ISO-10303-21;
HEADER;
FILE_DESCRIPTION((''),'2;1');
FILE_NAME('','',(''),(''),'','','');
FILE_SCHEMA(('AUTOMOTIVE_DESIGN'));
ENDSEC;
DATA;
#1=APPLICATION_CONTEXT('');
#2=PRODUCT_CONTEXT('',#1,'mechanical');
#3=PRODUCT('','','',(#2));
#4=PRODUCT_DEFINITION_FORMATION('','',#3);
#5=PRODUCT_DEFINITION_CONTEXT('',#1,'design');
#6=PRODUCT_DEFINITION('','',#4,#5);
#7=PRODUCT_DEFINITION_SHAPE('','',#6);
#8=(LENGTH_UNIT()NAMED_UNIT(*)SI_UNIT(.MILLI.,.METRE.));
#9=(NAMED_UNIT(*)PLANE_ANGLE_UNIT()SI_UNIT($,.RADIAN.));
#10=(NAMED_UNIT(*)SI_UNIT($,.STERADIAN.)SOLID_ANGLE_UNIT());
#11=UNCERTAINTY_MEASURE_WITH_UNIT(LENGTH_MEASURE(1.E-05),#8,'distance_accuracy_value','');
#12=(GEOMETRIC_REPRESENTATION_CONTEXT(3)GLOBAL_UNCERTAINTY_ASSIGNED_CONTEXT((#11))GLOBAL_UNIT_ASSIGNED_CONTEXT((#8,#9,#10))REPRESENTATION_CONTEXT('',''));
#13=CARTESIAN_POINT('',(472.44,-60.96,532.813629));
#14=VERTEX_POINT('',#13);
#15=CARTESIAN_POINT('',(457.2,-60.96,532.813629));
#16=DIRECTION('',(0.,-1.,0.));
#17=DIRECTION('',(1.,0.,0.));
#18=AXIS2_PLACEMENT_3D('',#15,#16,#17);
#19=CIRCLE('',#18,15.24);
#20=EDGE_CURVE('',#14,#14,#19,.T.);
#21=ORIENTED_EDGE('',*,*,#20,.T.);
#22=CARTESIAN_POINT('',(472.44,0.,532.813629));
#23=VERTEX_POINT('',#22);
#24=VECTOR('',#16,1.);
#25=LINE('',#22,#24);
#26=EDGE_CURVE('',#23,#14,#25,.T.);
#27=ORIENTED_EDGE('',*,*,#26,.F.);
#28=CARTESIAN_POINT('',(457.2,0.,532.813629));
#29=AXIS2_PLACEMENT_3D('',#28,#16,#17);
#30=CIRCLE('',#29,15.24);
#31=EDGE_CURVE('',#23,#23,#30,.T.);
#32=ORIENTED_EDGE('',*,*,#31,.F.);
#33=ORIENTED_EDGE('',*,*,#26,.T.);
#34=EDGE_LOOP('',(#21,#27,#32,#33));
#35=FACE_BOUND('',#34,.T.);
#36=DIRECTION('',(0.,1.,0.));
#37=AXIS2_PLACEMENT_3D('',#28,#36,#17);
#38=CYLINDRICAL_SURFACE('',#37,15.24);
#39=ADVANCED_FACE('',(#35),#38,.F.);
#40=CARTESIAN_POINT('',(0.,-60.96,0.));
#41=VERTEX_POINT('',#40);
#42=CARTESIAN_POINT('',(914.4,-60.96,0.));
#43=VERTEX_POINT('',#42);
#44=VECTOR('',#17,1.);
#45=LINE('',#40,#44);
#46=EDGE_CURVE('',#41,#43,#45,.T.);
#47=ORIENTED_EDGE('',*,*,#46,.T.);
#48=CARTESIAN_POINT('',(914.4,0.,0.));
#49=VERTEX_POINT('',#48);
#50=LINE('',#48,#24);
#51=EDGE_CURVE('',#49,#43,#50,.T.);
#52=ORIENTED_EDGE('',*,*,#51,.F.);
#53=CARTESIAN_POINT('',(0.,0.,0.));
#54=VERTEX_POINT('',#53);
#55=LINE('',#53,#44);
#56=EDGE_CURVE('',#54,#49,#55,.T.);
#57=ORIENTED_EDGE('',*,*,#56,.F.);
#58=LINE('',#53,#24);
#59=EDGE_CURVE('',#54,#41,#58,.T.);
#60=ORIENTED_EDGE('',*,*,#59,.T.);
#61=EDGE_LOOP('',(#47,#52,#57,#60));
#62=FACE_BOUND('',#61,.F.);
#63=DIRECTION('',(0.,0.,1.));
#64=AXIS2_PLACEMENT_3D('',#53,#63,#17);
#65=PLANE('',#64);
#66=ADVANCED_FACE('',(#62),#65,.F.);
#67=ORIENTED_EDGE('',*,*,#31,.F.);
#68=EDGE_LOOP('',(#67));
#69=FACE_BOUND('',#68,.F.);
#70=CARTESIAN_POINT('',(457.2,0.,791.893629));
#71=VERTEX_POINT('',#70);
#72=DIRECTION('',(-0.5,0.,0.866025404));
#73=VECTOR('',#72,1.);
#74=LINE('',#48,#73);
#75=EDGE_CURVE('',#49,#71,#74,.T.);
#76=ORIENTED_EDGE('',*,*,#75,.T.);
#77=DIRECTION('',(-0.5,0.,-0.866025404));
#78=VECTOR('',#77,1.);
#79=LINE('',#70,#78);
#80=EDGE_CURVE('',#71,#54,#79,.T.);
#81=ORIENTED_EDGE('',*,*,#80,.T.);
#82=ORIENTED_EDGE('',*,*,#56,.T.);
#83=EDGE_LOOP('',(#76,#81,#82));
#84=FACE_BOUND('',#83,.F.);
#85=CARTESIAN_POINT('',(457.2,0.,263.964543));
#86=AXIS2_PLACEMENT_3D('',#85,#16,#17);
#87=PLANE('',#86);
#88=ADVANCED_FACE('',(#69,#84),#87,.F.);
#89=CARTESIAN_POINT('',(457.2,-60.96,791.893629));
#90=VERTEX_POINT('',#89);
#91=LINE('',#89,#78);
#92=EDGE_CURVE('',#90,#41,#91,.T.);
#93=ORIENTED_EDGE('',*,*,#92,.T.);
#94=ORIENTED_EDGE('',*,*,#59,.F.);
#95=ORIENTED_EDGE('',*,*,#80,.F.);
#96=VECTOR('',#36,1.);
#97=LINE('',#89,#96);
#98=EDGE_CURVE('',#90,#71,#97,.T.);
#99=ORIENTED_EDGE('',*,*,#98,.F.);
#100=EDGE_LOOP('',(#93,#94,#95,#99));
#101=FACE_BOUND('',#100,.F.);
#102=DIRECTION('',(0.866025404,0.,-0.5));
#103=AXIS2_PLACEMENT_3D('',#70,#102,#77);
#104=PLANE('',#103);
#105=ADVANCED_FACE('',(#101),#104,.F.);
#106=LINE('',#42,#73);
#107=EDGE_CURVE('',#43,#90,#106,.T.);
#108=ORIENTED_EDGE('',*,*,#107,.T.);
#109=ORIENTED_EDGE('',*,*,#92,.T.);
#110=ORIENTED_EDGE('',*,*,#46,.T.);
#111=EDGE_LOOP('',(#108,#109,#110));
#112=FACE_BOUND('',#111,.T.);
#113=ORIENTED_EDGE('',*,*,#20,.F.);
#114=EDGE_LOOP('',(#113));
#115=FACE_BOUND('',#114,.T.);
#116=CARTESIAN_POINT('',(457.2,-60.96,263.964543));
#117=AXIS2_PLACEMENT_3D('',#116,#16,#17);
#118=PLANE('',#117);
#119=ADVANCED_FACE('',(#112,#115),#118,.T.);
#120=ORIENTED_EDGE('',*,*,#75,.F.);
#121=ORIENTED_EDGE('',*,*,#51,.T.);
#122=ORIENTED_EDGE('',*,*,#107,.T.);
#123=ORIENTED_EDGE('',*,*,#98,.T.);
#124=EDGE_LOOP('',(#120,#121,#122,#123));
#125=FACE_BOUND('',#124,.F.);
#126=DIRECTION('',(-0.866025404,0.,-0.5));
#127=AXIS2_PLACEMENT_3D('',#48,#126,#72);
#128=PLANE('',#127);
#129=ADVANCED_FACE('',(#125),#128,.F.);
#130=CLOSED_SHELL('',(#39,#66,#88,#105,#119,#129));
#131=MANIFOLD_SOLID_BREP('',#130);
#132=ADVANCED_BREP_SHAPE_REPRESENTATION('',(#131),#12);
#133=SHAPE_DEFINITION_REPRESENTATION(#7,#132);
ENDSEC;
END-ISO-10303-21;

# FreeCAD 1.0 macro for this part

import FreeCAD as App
import Part
import Sketcher
Q = App.Units.Quantity

doc = App.newDocument("Part")
body = doc.addObject("PartDesign::Body", "Body")

# Sketch on XZ plane
sketch1 = body.newObject("Sketcher::SketchObject", "Sketch")
sketch1.AttachmentSupport = (doc.getObject("XZ_Plane"), [""])
sketch1.MapMode = "FlatFace"
sketch1.addGeometry([
    Part.LineSegment(App.Vector(457, 792, 0), App.Vector(0, 0, 0)),
    Part.LineSegment(App.Vector(0, 0, 0), App.Vector(914, 0, 0)),
    Part.LineSegment(App.Vector(914, 0, 0), App.Vector(457, 792, 0)),
    Part.Circle(App.Vector(457, 533, 0), App.Vector(0, 0, 1), 15),
], False)
sketch1.addConstraint([
    Sketcher.Constraint("Coincident", 0, 2, 1, 1),
    Sketcher.Constraint("Coincident", 1, 2, 2, 1),
    Sketcher.Constraint("Coincident", 2, 2, 0, 1),
    Sketcher.Constraint("Horizontal", 1),
    Sketcher.Constraint("Coincident", 0, 2, -1, 1),
    Sketcher.Constraint("Vertical", 3, 3, 2, 2),
    Sketcher.Constraint("Equal", 0, 2),
    Sketcher.Constraint("Diameter", 3, Q("1.2 in")),
    Sketcher.Constraint("DistanceX", 1, 1, 1, 2, Q("36 in")),
    Sketcher.Constraint("Distance", 0, Q("36 in")),
    Sketcher.Constraint("DistanceY", 3, 3, 2, 2, Q("10.2 in")),
])
pad1 = body.newObject("PartDesign::Pad", "Pad")
pad1.Profile = sketch1
pad1.Length = Q("2.4 in")

# Sketch on XZ plane
sketch2 = body.newObject("Sketcher::SketchObject", "Sketch001")
sketch2.AttachmentSupport = (doc.getObject("XZ_Plane"), [""])
sketch2.MapMode = "FlatFace"
sketch2.addGeometry([
    Part.LineSegment(App.Vector(457, 792, 0), App.Vector(0, 0, 0)),
    Part.LineSegment(App.Vector(0, 0, 0), App.Vector(914, 0, 0)),
    Part.LineSegment(App.Vector(914, 0, 0), App.Vector(457, 792, 0)),
    Part.Circle(App.Vector(457, 533, 0), App.Vector(0, 0, 1), 15),
], False)
sketch2.addConstraint([
    Sketcher.Constraint("Coincident", 0, 2, 1, 1),
    Sketcher.Constraint("Coincident", 1, 2, 2, 1),
    Sketcher.Constraint("Coincident", 2, 2, 0, 1),
    Sketcher.Constraint("Horizontal", 1),
    Sketcher.Constraint("Coincident", 0, 2, -1, 1),
    Sketcher.Constraint("Vertical", 3, 3, 2, 2),
    Sketcher.Constraint("Equal", 0, 2),
    Sketcher.Constraint("Diameter", 3, Q("1.2 in")),
    Sketcher.Constraint("DistanceX", 1, 1, 1, 2, Q("36 in")),
    Sketcher.Constraint("Distance", 0, Q("36 in")),
    Sketcher.Constraint("DistanceY", 3, 3, 2, 2, Q("10.2 in")),
])
pad2 = body.newObject("PartDesign::Pad", "Pad001")
pad2.Profile = sketch2
pad2.Length = Q("1.2 in")

doc.recompute()
